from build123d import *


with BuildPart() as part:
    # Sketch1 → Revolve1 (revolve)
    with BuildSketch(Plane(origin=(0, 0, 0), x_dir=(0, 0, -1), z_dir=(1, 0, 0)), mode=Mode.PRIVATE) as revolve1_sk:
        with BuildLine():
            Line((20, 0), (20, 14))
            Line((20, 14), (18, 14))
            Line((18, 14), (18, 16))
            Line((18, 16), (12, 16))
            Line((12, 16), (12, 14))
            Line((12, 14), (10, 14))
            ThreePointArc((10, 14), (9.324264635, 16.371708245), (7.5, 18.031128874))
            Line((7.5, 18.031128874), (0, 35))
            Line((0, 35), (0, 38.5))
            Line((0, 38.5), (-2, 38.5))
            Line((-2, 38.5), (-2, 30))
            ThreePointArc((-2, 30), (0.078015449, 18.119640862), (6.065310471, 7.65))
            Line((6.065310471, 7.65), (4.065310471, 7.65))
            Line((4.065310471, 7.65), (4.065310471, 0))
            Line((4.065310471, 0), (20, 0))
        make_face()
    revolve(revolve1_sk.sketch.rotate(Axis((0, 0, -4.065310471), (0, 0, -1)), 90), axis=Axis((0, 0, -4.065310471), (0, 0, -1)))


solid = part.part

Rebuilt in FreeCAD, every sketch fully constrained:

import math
import FreeCAD as App
import Part
import Sketcher

doc = App.newDocument("Part")
body = doc.addObject("PartDesign::Body", "Body")

sketch1 = body.newObject("Sketcher::SketchObject", "Sketch")
sketch1.AttachmentSupport = (doc.getObject("YZ_Plane"), [""])
sketch1.MapMode = "FlatFace"
sketch1.addGeometry(Part.LineSegment(App.Vector(0, -20, 0), App.Vector(14, -20, 0)), False)
sketch1.addGeometry(Part.LineSegment(App.Vector(14, -20, 0), App.Vector(14, -18, 0)), False)
sketch1.addGeometry(Part.LineSegment(App.Vector(14, -18, 0), App.Vector(16, -18, 0)), False)
sketch1.addGeometry(Part.LineSegment(App.Vector(16, -18, 0), App.Vector(16, -12, 0)), False)
sketch1.addGeometry(Part.LineSegment(App.Vector(16, -12, 0), App.Vector(14, -12, 0)), False)
sketch1.addGeometry(Part.LineSegment(App.Vector(14, -12, 0), App.Vector(14, -10, 0)), False)
sketch1.addGeometry(Part.ArcOfCircle(Part.Circle(App.Vector(14, -5.5, 0), App.Vector(0, 0, 1), 4.5), math.radians(-90), math.radians(-26)), False)
sketch1.addGeometry(Part.LineSegment(App.Vector(18, -7.5, 0), App.Vector(35, 0, 0)), False)
sketch1.addGeometry(Part.LineSegment(App.Vector(35, 0, 0), App.Vector(38.5, 0, 0)), False)
sketch1.addGeometry(Part.LineSegment(App.Vector(38.5, 0, 0), App.Vector(38.5, 2, 0)), False)
sketch1.addGeometry(Part.LineSegment(App.Vector(38.5, 2, 0), App.Vector(30, 2, 0)), False)
sketch1.addGeometry(Part.ArcOfCircle(Part.Circle(App.Vector(30, -33, 0), App.Vector(0, 0, 1), 35), math.radians(90), math.radians(130)), False)
sketch1.addGeometry(Part.LineSegment(App.Vector(7.7, -6.1, 0), App.Vector(7.7, -4.1, 0)), False)
sketch1.addGeometry(Part.LineSegment(App.Vector(7.7, -4.1, 0), App.Vector(0, -4.1, 0)), False)
sketch1.addGeometry(Part.LineSegment(App.Vector(0, -4.1, 0), App.Vector(0, -20, 0)), False)
sketch1.addConstraint(Sketcher.Constraint("Coincident", 0, 2, 1, 1))
sketch1.addConstraint(Sketcher.Constraint("Coincident", 1, 2, 2, 1))
sketch1.addConstraint(Sketcher.Constraint("Coincident", 2, 2, 3, 1))
sketch1.addConstraint(Sketcher.Constraint("Coincident", 3, 2, 4, 1))
sketch1.addConstraint(Sketcher.Constraint("Coincident", 4, 2, 5, 1))
sketch1.addConstraint(Sketcher.Constraint("Coincident", 5, 2, 6, 1))
sketch1.addConstraint(Sketcher.Constraint("Coincident", 6, 2, 7, 1))
sketch1.addConstraint(Sketcher.Constraint("Coincident", 7, 2, 8, 1))
sketch1.addConstraint(Sketcher.Constraint("Coincident", 8, 2, 9, 1))
sketch1.addConstraint(Sketcher.Constraint("Coincident", 9, 2, 10, 1))
sketch1.addConstraint(Sketcher.Constraint("Tangent", 10, 2, 11, 1))
sketch1.addConstraint(Sketcher.Constraint("Coincident", 11, 2, 12, 1))
sketch1.addConstraint(Sketcher.Constraint("Coincident", 12, 2, 13, 1))
sketch1.addConstraint(Sketcher.Constraint("Coincident", 13, 2, 14, 1))
sketch1.addConstraint(Sketcher.Constraint("Coincident", 14, 2, 0, 1))
sketch1.addConstraint(Sketcher.Constraint("Horizontal", 0))
sketch1.addConstraint(Sketcher.Constraint("Vertical", 1))
sketch1.addConstraint(Sketcher.Constraint("Horizontal", 2))
sketch1.addConstraint(Sketcher.Constraint("Vertical", 3))
sketch1.addConstraint(Sketcher.Constraint("Horizontal", 4))
sketch1.addConstraint(Sketcher.Constraint("Vertical", 5))
sketch1.addConstraint(Sketcher.Constraint("Horizontal", 8))
sketch1.addConstraint(Sketcher.Constraint("Vertical", 9))
sketch1.addConstraint(Sketcher.Constraint("Horizontal", 10))
sketch1.addConstraint(Sketcher.Constraint("Vertical", 12))
sketch1.addConstraint(Sketcher.Constraint("Horizontal", 13))
sketch1.addConstraint(Sketcher.Constraint("Vertical", 14))
sketch1.addConstraint(Sketcher.Constraint("PointOnObject", 7, 2, -1))
sketch1.addConstraint(Sketcher.Constraint("PointOnObject", 13, 2, -2))
sketch1.addConstraint(Sketcher.Constraint("Vertical", 6, 3, 0, 2))
sketch1.addConstraint(Sketcher.Constraint("Vertical", 1, 2, 4, 2))
sketch1.addConstraint(Sketcher.Constraint("Equal", 4, 1))
sketch1.addConstraint(Sketcher.Constraint("Equal", 1, 5))
sketch1.addConstraint(Sketcher.Constraint("Equal", 5, 9))
sketch1.addConstraint(Sketcher.Constraint("Equal", 9, 12))
sketch1.addConstraint(Sketcher.Constraint("Radius", 11, 35.0))
sketch1.addConstraint(Sketcher.Constraint("Radius", 6, 4.5))
sketch1.addConstraint(Sketcher.Constraint("DistanceX", 0, 1, 0, 2, 14.0))
sketch1.addConstraint(Sketcher.Constraint("DistanceX", 2, 1, 2, 2, 2.0))
sketch1.addConstraint(Sketcher.Constraint("DistanceY", 3, 1, 3, 2, 6.0))
sketch1.addConstraint(Sketcher.Constraint("DistanceX", 8, 1, 8, 2, 3.5))
sketch1.addConstraint(Sketcher.Constraint("DistanceX", 10, 2, 10, 1, 8.5))
sketch1.addConstraint(Sketcher.Constraint("DistanceX", -1, 1, 11, 3, 30.0))
sketch1.addConstraint(Sketcher.Constraint("DistanceY", 0, 2, -1, 1, 20.0))
sketch1.addConstraint(Sketcher.Constraint("DistanceY", 6, 2, 6, 3, 2.0))
sketch1.addConstraint(Sketcher.Constraint("DistanceX", 13, 2, 13, 1, 7.65))
revolution = body.newObject("PartDesign::Revolution", "Revolution")
revolution.Profile = sketch1
revolution.ReferenceAxis = (sketch1, ["V_Axis"])
revolution.Angle = 360

doc.recompute()
